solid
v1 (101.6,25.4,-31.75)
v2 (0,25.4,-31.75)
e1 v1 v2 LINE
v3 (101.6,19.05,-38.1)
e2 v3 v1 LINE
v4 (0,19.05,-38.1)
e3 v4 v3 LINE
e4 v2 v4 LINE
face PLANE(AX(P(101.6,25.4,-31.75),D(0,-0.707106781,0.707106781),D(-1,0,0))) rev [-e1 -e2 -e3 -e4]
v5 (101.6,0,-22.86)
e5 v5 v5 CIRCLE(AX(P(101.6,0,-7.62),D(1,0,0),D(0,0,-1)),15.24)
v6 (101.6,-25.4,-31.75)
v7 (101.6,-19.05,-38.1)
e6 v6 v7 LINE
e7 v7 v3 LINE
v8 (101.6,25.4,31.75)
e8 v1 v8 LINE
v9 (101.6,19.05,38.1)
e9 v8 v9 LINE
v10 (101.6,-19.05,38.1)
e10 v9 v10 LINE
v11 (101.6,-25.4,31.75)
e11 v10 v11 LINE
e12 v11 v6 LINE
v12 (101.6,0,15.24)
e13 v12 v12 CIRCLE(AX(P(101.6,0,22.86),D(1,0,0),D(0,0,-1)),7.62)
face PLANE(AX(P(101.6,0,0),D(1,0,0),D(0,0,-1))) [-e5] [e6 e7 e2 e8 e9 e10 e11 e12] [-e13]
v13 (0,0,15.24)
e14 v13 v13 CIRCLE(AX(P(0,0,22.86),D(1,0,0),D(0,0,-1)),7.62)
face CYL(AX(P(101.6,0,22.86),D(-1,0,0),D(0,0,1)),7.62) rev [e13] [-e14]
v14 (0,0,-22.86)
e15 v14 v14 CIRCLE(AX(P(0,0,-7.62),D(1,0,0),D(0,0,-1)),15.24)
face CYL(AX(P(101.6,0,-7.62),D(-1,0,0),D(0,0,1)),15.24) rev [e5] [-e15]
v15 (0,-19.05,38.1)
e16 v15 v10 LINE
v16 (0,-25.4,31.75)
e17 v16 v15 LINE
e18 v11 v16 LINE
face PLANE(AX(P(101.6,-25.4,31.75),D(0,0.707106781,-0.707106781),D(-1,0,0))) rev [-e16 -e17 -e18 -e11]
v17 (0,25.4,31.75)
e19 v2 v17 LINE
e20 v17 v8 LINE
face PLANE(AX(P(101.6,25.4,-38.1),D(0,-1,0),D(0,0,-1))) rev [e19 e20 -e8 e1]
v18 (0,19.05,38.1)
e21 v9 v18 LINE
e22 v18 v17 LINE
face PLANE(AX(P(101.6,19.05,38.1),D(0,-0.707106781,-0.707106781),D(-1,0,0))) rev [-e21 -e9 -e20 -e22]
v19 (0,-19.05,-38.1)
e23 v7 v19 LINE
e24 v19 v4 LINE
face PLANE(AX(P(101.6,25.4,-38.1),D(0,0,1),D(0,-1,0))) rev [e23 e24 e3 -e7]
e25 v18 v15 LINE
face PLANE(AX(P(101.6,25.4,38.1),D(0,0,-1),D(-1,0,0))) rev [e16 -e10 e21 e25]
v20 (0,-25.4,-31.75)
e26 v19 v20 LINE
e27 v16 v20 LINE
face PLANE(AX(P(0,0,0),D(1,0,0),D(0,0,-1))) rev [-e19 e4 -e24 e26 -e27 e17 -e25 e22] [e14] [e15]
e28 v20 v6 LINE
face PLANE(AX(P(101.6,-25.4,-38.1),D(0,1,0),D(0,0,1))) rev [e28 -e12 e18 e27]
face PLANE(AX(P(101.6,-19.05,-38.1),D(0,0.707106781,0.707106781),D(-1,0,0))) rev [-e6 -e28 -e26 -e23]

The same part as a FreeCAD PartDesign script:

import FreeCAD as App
import Part
import Sketcher

V = App.Vector
Q = App.Units.Quantity


def edges_at(feature, points):
    """Names of the edges that pass closest to the given points."""
    edges = feature.Shape.Edges
    near = lambda p: min(range(len(edges)), key=lambda i: edges[i].distToShape(Part.Vertex(*p))[0])
    return sorted({f"Edge{near(p) + 1}" for p in points})


def add_polygon(sketch, points):
    """Adds a closed chain of lines whose ends are joined by coincident constraints."""
    first, n = sketch.GeometryCount, len(points)
    for a, b in zip(points, points[1:] + points[:1]):
        sketch.addGeometry(Part.LineSegment(App.Vector(*a, 0), App.Vector(*b, 0)), False)
    for i in range(n):
        sketch.addConstraint(Sketcher.Constraint("Coincident", first + i, 2, first + (i + 1) % n, 1))

doc = App.newDocument("Part")
body = doc.addObject("PartDesign::Body", "Body")

# Sketch on YZ plane
sketch1 = body.newObject("Sketcher::SketchObject", "Sketch")
sketch1.AttachmentSupport = (doc.getObject("YZ_Plane"), [""])
sketch1.MapMode = "FlatFace"
add_polygon(sketch1, [(-25.4, 38.1), (-25.4, -38.1), (25.4, -38.1), (25.4, 38.1)])  # lines 0-3
sketch1.addGeometry(Part.Circle(V(0, -7.62, 0), V(0, 0, 1), 15.24), False)  # 4
sketch1.addGeometry(Part.Circle(V(0, 22.86, 0), V(0, 0, 1), 7.62), False)  # 5
sketch1.addConstraint(Sketcher.Constraint("Vertical", 0))
sketch1.addConstraint(Sketcher.Constraint("Horizontal", 1))
sketch1.addConstraint(Sketcher.Constraint("Vertical", 2))
sketch1.addConstraint(Sketcher.Constraint("Horizontal", 3))
sketch1.addConstraint(Sketcher.Constraint("Symmetric", 0, 2, 2, 2, -1, 1))
sketch1.addConstraint(Sketcher.Constraint("PointOnObject", 4, 3, -2))
sketch1.addConstraint(Sketcher.Constraint("PointOnObject", 5, 3, -2))
sketch1.addConstraint(Sketcher.Constraint("Diameter", 4, Q("1.2 in")))
sketch1.addConstraint(Sketcher.Constraint("Diameter", 5, Q("0.6 in")))
sketch1.addConstraint(Sketcher.Constraint("DistanceX", 1, 1, 1, 2, Q("2 in")))
sketch1.addConstraint(Sketcher.Constraint("DistanceY", 0, 2, 0, 1, Q("3 in")))
sketch1.addConstraint(Sketcher.Constraint("DistanceY", 4, 3, -1, 1, Q("0.3 in")))
sketch1.addConstraint(Sketcher.Constraint("DistanceY", -1, 1, 5, 3, Q("0.9 in")))
pad1 = body.newObject("PartDesign::Pad", "Pad")
pad1.Profile = sketch1
pad1.Length = Q("4 in")
doc.recompute()

chamfer = body.newObject("PartDesign::Chamfer", "Chamfer")
chamfer.Base = (pad1, edges_at(pad1, [(50.8, -25.4, 38.1), (50.8, -25.4, -38.1)]))
chamfer.Size = Q("0.25 in")
doc.recompute()

chamfer2 = body.newObject("PartDesign::Chamfer", "Chamfer001")
chamfer2.Base = (chamfer, edges_at(chamfer, [(50.8, 25.4, 38.1), (50.8, 25.4, -38.1)]))
chamfer2.Size = Q("0.25 in")

doc.recompute()
